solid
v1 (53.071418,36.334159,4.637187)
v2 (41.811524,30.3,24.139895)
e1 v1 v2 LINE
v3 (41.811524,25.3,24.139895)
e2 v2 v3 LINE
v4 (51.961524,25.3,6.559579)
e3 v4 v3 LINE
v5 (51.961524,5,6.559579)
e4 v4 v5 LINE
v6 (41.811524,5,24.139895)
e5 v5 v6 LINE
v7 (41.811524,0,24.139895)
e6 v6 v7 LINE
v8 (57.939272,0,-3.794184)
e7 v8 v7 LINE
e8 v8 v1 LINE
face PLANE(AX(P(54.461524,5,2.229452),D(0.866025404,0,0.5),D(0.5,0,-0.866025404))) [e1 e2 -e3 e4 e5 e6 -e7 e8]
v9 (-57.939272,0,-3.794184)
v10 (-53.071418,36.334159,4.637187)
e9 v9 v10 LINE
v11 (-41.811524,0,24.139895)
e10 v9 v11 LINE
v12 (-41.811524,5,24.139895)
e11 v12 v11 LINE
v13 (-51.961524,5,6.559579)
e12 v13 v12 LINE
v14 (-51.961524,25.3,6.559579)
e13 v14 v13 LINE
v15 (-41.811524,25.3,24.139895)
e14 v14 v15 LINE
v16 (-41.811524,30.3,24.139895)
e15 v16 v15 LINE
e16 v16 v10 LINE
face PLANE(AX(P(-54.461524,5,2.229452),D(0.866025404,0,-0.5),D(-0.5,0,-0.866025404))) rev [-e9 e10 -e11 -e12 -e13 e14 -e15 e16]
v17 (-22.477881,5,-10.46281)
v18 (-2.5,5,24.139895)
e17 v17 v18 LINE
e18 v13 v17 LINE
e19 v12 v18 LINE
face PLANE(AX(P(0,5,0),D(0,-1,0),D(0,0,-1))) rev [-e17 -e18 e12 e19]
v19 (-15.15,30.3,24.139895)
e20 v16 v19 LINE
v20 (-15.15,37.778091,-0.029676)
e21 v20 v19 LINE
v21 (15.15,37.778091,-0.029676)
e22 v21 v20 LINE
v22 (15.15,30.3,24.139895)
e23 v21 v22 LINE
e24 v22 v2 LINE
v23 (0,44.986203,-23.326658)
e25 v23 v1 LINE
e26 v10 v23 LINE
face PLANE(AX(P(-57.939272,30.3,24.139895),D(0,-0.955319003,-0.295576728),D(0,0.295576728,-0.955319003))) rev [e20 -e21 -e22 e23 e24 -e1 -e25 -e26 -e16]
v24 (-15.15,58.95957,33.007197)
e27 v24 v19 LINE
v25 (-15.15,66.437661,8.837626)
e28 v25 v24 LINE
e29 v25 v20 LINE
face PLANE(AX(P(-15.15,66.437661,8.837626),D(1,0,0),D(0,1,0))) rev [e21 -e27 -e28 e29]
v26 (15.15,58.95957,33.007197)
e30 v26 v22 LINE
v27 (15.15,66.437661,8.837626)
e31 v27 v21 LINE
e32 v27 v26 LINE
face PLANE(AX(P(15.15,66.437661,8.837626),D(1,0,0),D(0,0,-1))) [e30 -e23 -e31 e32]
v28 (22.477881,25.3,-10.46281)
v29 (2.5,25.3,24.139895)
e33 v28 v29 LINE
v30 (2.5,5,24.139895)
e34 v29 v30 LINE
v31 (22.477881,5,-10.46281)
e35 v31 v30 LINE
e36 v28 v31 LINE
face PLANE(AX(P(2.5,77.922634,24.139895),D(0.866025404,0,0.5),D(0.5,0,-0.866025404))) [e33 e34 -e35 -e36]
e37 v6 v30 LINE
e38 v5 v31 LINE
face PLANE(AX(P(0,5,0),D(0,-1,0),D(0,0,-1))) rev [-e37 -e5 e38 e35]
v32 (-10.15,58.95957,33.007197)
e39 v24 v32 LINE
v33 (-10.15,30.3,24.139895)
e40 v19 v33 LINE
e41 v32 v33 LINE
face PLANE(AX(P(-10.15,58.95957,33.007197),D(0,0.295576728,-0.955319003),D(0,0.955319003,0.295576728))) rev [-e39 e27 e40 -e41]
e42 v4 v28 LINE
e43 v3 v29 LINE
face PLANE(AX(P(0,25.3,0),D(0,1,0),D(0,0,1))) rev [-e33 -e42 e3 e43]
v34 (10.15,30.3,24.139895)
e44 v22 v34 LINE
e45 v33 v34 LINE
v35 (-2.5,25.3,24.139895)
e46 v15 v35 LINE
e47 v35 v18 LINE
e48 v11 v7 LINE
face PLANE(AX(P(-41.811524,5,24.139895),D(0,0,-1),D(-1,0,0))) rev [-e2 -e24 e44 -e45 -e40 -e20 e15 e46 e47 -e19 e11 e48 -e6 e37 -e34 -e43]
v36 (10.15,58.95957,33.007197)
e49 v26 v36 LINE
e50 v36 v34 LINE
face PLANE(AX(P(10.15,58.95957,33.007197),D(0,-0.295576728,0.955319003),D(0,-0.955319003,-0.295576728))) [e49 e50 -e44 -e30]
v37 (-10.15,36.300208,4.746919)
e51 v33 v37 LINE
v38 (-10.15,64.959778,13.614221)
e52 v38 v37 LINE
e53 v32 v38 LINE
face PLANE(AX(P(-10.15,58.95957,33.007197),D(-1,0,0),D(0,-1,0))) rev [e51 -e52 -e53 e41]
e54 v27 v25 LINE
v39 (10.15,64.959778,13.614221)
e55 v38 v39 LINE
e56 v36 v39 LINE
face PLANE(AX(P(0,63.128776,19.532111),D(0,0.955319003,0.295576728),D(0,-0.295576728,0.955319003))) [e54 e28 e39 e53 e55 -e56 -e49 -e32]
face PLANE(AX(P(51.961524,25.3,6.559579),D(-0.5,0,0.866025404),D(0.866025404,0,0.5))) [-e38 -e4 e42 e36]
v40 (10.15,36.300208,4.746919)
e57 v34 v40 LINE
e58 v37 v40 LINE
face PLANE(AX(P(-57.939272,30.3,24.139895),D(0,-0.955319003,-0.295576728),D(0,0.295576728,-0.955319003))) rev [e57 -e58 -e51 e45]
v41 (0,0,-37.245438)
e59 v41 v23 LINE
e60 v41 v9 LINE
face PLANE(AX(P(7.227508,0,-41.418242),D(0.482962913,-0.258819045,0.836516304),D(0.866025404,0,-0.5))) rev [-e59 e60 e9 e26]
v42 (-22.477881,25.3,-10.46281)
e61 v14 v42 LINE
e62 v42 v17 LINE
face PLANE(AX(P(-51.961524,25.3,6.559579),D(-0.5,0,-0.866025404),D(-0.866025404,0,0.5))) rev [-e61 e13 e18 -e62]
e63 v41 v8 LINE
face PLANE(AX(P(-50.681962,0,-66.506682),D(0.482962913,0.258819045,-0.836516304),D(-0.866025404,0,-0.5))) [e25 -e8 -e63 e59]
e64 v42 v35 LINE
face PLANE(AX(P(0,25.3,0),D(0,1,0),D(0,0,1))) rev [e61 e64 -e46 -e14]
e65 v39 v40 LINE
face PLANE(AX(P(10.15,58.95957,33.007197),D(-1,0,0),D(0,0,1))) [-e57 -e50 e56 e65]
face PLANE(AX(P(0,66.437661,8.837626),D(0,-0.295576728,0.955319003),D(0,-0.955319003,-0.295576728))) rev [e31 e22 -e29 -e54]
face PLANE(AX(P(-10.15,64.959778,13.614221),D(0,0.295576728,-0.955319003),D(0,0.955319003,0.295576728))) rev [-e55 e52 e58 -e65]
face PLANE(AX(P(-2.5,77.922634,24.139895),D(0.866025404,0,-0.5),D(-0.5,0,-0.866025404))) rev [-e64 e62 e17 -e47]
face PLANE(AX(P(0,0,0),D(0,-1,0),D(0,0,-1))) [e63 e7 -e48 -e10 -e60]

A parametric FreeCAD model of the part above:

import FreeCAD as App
import Part
import Sketcher
from FreeCAD import Vector
Q = App.Units.Quantity


def add_polygon(sketch, points):
    """Adds a closed chain of lines whose ends are joined by coincident constraints."""
    first, n = sketch.GeometryCount, len(points)
    for a, b in zip(points, points[1:] + points[:1]):
        sketch.addGeometry(Part.LineSegment(App.Vector(*a, 0), App.Vector(*b, 0)), False)
    for i in range(n):
        sketch.addConstraint(Sketcher.Constraint("Coincident", first + i, 2, first + (i + 1) % n, 1))

doc = App.newDocument("Part")
params = doc.addObject("Spreadsheet::Sheet", "Params")
for row, (alias, value) in enumerate([
    ("sketch1_length", "25.3 mm"),
    ("pad1_length", "5 mm"),
    ("sketch2_length", "60 mm"),
    ("sketch2_length2", "5 mm"),
    ("pad2_length", "20.3 mm"),
    ("pad3_length", "5 mm"),
    ("pad4_length", "50 mm"),
    ("sketch5_height", "80.3 mm"),
    ("sketch6_width", "50 mm"),
    ("sketch7_width", "5 mm"),
    ("sketch7_height", "20.3 mm"),
    ("sketch7_width2", "10.15 mm"),
    ("pad5_length", "30 mm"),
    ("sketch8_width", "2.5 mm"),
    ("pad6_length", "20.3 mm"),
], start=1):
    params.set(f"A{row}", alias)
    params.set(f"B{row}", "=" + value)
    params.setAlias(f"B{row}", alias)

body = doc.addObject("PartDesign::Body", "Body")

sketch1 = body.newObject("Sketcher::SketchObject", "Sketch")
sketch1.AttachmentSupport = (doc.getObject("XZ_Plane"), [""])
sketch1.MapMode = "FlatFace"
add_polygon(sketch1, [(-54, 2), (-42, 24), (0, 24), (0, -54), (-65, -16)])
sketch1.addConstraint(Sketcher.Constraint("Horizontal", 1))
sketch1.addConstraint(Sketcher.Constraint("Vertical", 2))
sketch1.addConstraint(Sketcher.Constraint("PointOnObject", 1, 2, -2))
sketch1.addConstraint(Sketcher.Constraint("Perpendicular", 0, 3))
sketch1.addConstraint(Sketcher.Constraint("Perpendicular", 3, 4))
sketch1.addConstraint(Sketcher.Constraint("Angle", 0, Q("60 deg")))
sketch1.addConstraint(Sketcher.Constraint("Distance", 0, 25.3))
sketch1.addConstraint(Sketcher.Constraint("Distance", 4, 21.410512))
sketch1.addConstraint(Sketcher.Constraint("DistanceX", 1, 1, 1, 2, 41.811524))
sketch1.addConstraint(Sketcher.Constraint("DistanceY", -1, 1, 0, 2, 24.139895))
sketch1.setExpression("Constraints[11]", "Params.sketch1_length")
pad1 = body.newObject("PartDesign::Pad", "Pad")
pad1.Profile = sketch1
pad1.setExpression("Length", "Params.pad1_length")
pad1.Reversed = True

sketch2 = body.newObject("Sketcher::SketchObject", "Sketch001")
sketch2.AttachmentSupport = (doc.getObject("XZ_Plane"), [""])
sketch2.MapMode = "FlatFace"
sketch2.AttachmentOffset = App.Placement(Vector(0, 0, -5), App.Rotation())
add_polygon(sketch2, [(-52, 7), (0, -23), (0, -54), (-65, -16), (-54, 2)])
sketch2.addConstraint(Sketcher.Constraint("Vertical", 1))
sketch2.addConstraint(Sketcher.Constraint("PointOnObject", 0, 2, -2))
sketch2.addConstraint(Sketcher.Constraint("Parallel", 0, 2))
sketch2.addConstraint(Sketcher.Constraint("Perpendicular", 2, 3))
sketch2.addConstraint(Sketcher.Constraint("Parallel", 3, 4))
sketch2.addConstraint(Sketcher.Constraint("Angle", 0, Q("-30 deg")))
sketch2.addConstraint(Sketcher.Constraint("Distance", 0, 60.0))
sketch2.addConstraint(Sketcher.Constraint("Distance", 4, 5.0))
sketch2.addConstraint(Sketcher.Constraint("DistanceY", 1, 2, 1, 1, 30.496232))
sketch2.addConstraint(Sketcher.Constraint("DistanceY", 0, 2, -1, 1, 23.440421))
sketch2.setExpression("Constraints[11]", "Params.sketch2_length")
sketch2.setExpression("Constraints[12]", "Params.sketch2_length2")
pad2 = body.newObject("PartDesign::Pad", "Pad001")
pad2.Profile = sketch2
pad2.setExpression("Length", "Params.pad2_length")
pad2.Reversed = True

sketch3 = body.newObject("Sketcher::SketchObject", "Sketch002")
sketch3.AttachmentSupport = (doc.getObject("XZ_Plane"), [""])
sketch3.MapMode = "FlatFace"
sketch3.AttachmentOffset = App.Placement(Vector(0, 0, -25.3), App.Rotation())
add_polygon(sketch3, [(-65, -16), (-42, 24), (0, 24), (0, -54)])
sketch3.addConstraint(Sketcher.Constraint("Horizontal", 1))
sketch3.addConstraint(Sketcher.Constraint("Vertical", 2))
sketch3.addConstraint(Sketcher.Constraint("PointOnObject", 1, 2, -2))
sketch3.addConstraint(Sketcher.Constraint("Perpendicular", 0, 3))
sketch3.addConstraint(Sketcher.Constraint("Angle", 0, Q("60 deg")))
sketch3.addConstraint(Sketcher.Constraint("Distance", 0, 46.710512))
sketch3.addConstraint(Sketcher.Constraint("DistanceX", 1, 1, 1, 2, 41.811524))
sketch3.addConstraint(Sketcher.Constraint("DistanceY", -1, 1, 0, 2, 24.139895))
pad3 = body.newObject("PartDesign::Pad", "Pad002")
pad3.Profile = sketch3
pad3.setExpression("Length", "Params.pad3_length")
pad3.Reversed = True

sketch4 = body.newObject("Sketcher::SketchObject", "Sketch003")
sketch4.AttachmentSupport = (doc.getObject("XZ_Plane"), [""])
sketch4.MapMode = "FlatFace"
sketch4.AttachmentOffset = App.Placement(Vector(0, 0, -30.3), App.Rotation())
add_polygon(sketch4, [(0, -54), (-65, -16), (-42, 24), (0, 24)])
sketch4.addConstraint(Sketcher.Constraint("Horizontal", 2))
sketch4.addConstraint(Sketcher.Constraint("Vertical", 3))
sketch4.addConstraint(Sketcher.Constraint("PointOnObject", 2, 2, -2))
sketch4.addConstraint(Sketcher.Constraint("Perpendicular", 0, 1))
sketch4.addConstraint(Sketcher.Constraint("Angle", 0, Q("150 deg")))
sketch4.addConstraint(Sketcher.Constraint("Distance", 1, 46.710512))
sketch4.addConstraint(Sketcher.Constraint("DistanceX", 2, 1, 2, 2, 41.811524))
sketch4.addConstraint(Sketcher.Constraint("DistanceY", 0, 2, -1, 1, 16.312595))
pad4 = body.newObject("PartDesign::Pad", "Pad003")
pad4.Profile = sketch4
pad4.setExpression("Length", "Params.pad4_length")
pad4.Reversed = True

sketch5 = body.newObject("Sketcher::SketchObject", "Sketch004")
sketch5.Placement = App.Placement(Vector(-41.811524, 0, 24.139895), App.Rotation(Vector(0.5, 0, 0.866025404), Vector(0, 1, 0), Vector(-0.866025404, 0, 0.5), "ZXY"))
add_polygon(sketch5, [(-47, 80), (-47, 0), (-32, 0), (-11, 80)])
sketch5.addConstraint(Sketcher.Constraint("Vertical", 0))
sketch5.addConstraint(Sketcher.Constraint("Horizontal", 1))
sketch5.addConstraint(Sketcher.Constraint("Horizontal", 3))
sketch5.addConstraint(Sketcher.Constraint("PointOnObject", 0, 2, -1))
sketch5.addConstraint(Sketcher.Constraint("Angle", 2, Q("75 deg")))
sketch5.addConstraint(Sketcher.Constraint("DistanceY", 0, 2, 0, 1, 80.3))
sketch5.addConstraint(Sketcher.Constraint("DistanceX", 1, 1, 1, 2, 14.455016))
sketch5.addConstraint(Sketcher.Constraint("DistanceX", 0, 2, -1, 1, 46.710512))
sketch5.setExpression("Constraints[9]", "Params.sketch5_height")
pocket1 = body.newObject("PartDesign::Pocket", "Pocket")
pocket1.Profile = sketch5
pocket1.Type = "ThroughAll"

sketch6 = body.newObject("Sketcher::SketchObject", "Sketch005")
sketch6.AttachmentSupport = (doc.getObject("YZ_Plane"), [""])
sketch6.MapMode = "FlatFace"
add_polygon(sketch6, [(30, 24), (45, -23), (80, -12), (80, 24)])
sketch6.addConstraint(Sketcher.Constraint("Vertical", 2))
sketch6.addConstraint(Sketcher.Constraint("Horizontal", 3))
sketch6.addConstraint(Sketcher.Constraint("Perpendicular", 0, 1))
sketch6.addConstraint(Sketcher.Constraint("DistanceX", 3, 2, 3, 1, 50.0))
sketch6.addConstraint(Sketcher.Constraint("DistanceX", -1, 1, 1, 2, 80.3))
sketch6.addConstraint(Sketcher.Constraint("Distance", 0, 49.6866))
sketch6.addConstraint(Sketcher.Constraint("Distance", 1, 36.965451))
sketch6.addConstraint(Sketcher.Constraint("DistanceY", 0, 2, -1, 1, 23.326658))
sketch6.setExpression("Constraints[7]", "Params.sketch6_width")
pocket2 = body.newObject("PartDesign::Pocket", "Pocket001")
pocket2.Profile = sketch6
pocket2.Type = "ThroughAll"

sketch7 = body.newObject("Sketcher::SketchObject", "Sketch006")
sketch7.Placement = App.Placement(Vector(0, 34.469206, 10.664809), App.Rotation(Vector(1, 0, 0), Vector(0, 0.295576728, -0.955319003), Vector(0, 0.955319003, 0.295576728), "ZXY"))
add_polygon(sketch7, [(-10.2, -14.1), (-10.2, 6.2), (0, 6.2), (0, 11.2), (-15.2, 11.2), (-15.2, -14.1)])
sketch7.addConstraint(Sketcher.Constraint("Vertical", 0))
sketch7.addConstraint(Sketcher.Constraint("Horizontal", 1))
sketch7.addConstraint(Sketcher.Constraint("Vertical", 2))
sketch7.addConstraint(Sketcher.Constraint("Horizontal", 3))
sketch7.addConstraint(Sketcher.Constraint("Vertical", 4))
sketch7.addConstraint(Sketcher.Constraint("Horizontal", 5))
sketch7.addConstraint(Sketcher.Constraint("PointOnObject", 1, 2, -2))
sketch7.addConstraint(Sketcher.Constraint("Equal", 5, 2))
sketch7.addConstraint(Sketcher.Constraint("DistanceX", 5, 1, 5, 2, 5.0))
sketch7.addConstraint(Sketcher.Constraint("DistanceY", 0, 1, 0, 2, 20.3))
sketch7.addConstraint(Sketcher.Constraint("DistanceX", 1, 1, 1, 2, 10.15))
sketch7.addConstraint(Sketcher.Constraint("DistanceY", -1, 1, 0, 2, 6.194675))
sketch7.setExpression("Constraints[14]", "Params.sketch7_width")
sketch7.setExpression("Constraints[15]", "Params.sketch7_height")
sketch7.setExpression("Constraints[16]", "Params.sketch7_width2")
pad5 = body.newObject("PartDesign::Pad", "Pad004")
pad5.Profile = sketch7
pad5.setExpression("Length", "Params.pad5_length")

sketch8 = body.newObject("Sketcher::SketchObject", "Sketch007")
sketch8.AttachmentSupport = (doc.getObject("XZ_Plane"), [""])
sketch8.MapMode = "FlatFace"
sketch8.AttachmentOffset = App.Placement(Vector(0, 0, -5), App.Rotation())
add_polygon(sketch8, [(-2.5, 24.1), (0, 24.1), (0, -23.4), (-22.5, -10.5)])
sketch8.addConstraint(Sketcher.Constraint("Horizontal", 0))
sketch8.addConstraint(Sketcher.Constraint("Vertical", 1))
sketch8.addConstraint(Sketcher.Constraint("PointOnObject", 0, 2, -2))
sketch8.addConstraint(Sketcher.Constraint("Perpendicular", 2, 3))
sketch8.addConstraint(Sketcher.Constraint("Angle", 2, Q("150 deg")))
sketch8.addConstraint(Sketcher.Constraint("DistanceX", 0, 1, 0, 2, 2.5))
sketch8.addConstraint(Sketcher.Constraint("Distance", 2, 25.955221))
sketch8.addConstraint(Sketcher.Constraint("DistanceY", 1, 2, -1, 1, 23.440421))
sketch8.setExpression("Constraints[9]", "Params.sketch8_width")
pad6 = body.newObject("PartDesign::Pad", "Pad005")
pad6.Profile = sketch8
pad6.setExpression("Length", "Params.pad6_length")
pad6.Reversed = True
doc.recompute()

mirrored = body.newObject("PartDesign::Mirrored", "Mirrored")
mirrored.Originals = [pad1, pad2, pad3, pad4, pocket1, pocket2, pad5, pad6]
mirrored.MirrorPlane = (doc.getObject("YZ_Plane"), [""])
body.Tip = mirrored

doc.recompute()
